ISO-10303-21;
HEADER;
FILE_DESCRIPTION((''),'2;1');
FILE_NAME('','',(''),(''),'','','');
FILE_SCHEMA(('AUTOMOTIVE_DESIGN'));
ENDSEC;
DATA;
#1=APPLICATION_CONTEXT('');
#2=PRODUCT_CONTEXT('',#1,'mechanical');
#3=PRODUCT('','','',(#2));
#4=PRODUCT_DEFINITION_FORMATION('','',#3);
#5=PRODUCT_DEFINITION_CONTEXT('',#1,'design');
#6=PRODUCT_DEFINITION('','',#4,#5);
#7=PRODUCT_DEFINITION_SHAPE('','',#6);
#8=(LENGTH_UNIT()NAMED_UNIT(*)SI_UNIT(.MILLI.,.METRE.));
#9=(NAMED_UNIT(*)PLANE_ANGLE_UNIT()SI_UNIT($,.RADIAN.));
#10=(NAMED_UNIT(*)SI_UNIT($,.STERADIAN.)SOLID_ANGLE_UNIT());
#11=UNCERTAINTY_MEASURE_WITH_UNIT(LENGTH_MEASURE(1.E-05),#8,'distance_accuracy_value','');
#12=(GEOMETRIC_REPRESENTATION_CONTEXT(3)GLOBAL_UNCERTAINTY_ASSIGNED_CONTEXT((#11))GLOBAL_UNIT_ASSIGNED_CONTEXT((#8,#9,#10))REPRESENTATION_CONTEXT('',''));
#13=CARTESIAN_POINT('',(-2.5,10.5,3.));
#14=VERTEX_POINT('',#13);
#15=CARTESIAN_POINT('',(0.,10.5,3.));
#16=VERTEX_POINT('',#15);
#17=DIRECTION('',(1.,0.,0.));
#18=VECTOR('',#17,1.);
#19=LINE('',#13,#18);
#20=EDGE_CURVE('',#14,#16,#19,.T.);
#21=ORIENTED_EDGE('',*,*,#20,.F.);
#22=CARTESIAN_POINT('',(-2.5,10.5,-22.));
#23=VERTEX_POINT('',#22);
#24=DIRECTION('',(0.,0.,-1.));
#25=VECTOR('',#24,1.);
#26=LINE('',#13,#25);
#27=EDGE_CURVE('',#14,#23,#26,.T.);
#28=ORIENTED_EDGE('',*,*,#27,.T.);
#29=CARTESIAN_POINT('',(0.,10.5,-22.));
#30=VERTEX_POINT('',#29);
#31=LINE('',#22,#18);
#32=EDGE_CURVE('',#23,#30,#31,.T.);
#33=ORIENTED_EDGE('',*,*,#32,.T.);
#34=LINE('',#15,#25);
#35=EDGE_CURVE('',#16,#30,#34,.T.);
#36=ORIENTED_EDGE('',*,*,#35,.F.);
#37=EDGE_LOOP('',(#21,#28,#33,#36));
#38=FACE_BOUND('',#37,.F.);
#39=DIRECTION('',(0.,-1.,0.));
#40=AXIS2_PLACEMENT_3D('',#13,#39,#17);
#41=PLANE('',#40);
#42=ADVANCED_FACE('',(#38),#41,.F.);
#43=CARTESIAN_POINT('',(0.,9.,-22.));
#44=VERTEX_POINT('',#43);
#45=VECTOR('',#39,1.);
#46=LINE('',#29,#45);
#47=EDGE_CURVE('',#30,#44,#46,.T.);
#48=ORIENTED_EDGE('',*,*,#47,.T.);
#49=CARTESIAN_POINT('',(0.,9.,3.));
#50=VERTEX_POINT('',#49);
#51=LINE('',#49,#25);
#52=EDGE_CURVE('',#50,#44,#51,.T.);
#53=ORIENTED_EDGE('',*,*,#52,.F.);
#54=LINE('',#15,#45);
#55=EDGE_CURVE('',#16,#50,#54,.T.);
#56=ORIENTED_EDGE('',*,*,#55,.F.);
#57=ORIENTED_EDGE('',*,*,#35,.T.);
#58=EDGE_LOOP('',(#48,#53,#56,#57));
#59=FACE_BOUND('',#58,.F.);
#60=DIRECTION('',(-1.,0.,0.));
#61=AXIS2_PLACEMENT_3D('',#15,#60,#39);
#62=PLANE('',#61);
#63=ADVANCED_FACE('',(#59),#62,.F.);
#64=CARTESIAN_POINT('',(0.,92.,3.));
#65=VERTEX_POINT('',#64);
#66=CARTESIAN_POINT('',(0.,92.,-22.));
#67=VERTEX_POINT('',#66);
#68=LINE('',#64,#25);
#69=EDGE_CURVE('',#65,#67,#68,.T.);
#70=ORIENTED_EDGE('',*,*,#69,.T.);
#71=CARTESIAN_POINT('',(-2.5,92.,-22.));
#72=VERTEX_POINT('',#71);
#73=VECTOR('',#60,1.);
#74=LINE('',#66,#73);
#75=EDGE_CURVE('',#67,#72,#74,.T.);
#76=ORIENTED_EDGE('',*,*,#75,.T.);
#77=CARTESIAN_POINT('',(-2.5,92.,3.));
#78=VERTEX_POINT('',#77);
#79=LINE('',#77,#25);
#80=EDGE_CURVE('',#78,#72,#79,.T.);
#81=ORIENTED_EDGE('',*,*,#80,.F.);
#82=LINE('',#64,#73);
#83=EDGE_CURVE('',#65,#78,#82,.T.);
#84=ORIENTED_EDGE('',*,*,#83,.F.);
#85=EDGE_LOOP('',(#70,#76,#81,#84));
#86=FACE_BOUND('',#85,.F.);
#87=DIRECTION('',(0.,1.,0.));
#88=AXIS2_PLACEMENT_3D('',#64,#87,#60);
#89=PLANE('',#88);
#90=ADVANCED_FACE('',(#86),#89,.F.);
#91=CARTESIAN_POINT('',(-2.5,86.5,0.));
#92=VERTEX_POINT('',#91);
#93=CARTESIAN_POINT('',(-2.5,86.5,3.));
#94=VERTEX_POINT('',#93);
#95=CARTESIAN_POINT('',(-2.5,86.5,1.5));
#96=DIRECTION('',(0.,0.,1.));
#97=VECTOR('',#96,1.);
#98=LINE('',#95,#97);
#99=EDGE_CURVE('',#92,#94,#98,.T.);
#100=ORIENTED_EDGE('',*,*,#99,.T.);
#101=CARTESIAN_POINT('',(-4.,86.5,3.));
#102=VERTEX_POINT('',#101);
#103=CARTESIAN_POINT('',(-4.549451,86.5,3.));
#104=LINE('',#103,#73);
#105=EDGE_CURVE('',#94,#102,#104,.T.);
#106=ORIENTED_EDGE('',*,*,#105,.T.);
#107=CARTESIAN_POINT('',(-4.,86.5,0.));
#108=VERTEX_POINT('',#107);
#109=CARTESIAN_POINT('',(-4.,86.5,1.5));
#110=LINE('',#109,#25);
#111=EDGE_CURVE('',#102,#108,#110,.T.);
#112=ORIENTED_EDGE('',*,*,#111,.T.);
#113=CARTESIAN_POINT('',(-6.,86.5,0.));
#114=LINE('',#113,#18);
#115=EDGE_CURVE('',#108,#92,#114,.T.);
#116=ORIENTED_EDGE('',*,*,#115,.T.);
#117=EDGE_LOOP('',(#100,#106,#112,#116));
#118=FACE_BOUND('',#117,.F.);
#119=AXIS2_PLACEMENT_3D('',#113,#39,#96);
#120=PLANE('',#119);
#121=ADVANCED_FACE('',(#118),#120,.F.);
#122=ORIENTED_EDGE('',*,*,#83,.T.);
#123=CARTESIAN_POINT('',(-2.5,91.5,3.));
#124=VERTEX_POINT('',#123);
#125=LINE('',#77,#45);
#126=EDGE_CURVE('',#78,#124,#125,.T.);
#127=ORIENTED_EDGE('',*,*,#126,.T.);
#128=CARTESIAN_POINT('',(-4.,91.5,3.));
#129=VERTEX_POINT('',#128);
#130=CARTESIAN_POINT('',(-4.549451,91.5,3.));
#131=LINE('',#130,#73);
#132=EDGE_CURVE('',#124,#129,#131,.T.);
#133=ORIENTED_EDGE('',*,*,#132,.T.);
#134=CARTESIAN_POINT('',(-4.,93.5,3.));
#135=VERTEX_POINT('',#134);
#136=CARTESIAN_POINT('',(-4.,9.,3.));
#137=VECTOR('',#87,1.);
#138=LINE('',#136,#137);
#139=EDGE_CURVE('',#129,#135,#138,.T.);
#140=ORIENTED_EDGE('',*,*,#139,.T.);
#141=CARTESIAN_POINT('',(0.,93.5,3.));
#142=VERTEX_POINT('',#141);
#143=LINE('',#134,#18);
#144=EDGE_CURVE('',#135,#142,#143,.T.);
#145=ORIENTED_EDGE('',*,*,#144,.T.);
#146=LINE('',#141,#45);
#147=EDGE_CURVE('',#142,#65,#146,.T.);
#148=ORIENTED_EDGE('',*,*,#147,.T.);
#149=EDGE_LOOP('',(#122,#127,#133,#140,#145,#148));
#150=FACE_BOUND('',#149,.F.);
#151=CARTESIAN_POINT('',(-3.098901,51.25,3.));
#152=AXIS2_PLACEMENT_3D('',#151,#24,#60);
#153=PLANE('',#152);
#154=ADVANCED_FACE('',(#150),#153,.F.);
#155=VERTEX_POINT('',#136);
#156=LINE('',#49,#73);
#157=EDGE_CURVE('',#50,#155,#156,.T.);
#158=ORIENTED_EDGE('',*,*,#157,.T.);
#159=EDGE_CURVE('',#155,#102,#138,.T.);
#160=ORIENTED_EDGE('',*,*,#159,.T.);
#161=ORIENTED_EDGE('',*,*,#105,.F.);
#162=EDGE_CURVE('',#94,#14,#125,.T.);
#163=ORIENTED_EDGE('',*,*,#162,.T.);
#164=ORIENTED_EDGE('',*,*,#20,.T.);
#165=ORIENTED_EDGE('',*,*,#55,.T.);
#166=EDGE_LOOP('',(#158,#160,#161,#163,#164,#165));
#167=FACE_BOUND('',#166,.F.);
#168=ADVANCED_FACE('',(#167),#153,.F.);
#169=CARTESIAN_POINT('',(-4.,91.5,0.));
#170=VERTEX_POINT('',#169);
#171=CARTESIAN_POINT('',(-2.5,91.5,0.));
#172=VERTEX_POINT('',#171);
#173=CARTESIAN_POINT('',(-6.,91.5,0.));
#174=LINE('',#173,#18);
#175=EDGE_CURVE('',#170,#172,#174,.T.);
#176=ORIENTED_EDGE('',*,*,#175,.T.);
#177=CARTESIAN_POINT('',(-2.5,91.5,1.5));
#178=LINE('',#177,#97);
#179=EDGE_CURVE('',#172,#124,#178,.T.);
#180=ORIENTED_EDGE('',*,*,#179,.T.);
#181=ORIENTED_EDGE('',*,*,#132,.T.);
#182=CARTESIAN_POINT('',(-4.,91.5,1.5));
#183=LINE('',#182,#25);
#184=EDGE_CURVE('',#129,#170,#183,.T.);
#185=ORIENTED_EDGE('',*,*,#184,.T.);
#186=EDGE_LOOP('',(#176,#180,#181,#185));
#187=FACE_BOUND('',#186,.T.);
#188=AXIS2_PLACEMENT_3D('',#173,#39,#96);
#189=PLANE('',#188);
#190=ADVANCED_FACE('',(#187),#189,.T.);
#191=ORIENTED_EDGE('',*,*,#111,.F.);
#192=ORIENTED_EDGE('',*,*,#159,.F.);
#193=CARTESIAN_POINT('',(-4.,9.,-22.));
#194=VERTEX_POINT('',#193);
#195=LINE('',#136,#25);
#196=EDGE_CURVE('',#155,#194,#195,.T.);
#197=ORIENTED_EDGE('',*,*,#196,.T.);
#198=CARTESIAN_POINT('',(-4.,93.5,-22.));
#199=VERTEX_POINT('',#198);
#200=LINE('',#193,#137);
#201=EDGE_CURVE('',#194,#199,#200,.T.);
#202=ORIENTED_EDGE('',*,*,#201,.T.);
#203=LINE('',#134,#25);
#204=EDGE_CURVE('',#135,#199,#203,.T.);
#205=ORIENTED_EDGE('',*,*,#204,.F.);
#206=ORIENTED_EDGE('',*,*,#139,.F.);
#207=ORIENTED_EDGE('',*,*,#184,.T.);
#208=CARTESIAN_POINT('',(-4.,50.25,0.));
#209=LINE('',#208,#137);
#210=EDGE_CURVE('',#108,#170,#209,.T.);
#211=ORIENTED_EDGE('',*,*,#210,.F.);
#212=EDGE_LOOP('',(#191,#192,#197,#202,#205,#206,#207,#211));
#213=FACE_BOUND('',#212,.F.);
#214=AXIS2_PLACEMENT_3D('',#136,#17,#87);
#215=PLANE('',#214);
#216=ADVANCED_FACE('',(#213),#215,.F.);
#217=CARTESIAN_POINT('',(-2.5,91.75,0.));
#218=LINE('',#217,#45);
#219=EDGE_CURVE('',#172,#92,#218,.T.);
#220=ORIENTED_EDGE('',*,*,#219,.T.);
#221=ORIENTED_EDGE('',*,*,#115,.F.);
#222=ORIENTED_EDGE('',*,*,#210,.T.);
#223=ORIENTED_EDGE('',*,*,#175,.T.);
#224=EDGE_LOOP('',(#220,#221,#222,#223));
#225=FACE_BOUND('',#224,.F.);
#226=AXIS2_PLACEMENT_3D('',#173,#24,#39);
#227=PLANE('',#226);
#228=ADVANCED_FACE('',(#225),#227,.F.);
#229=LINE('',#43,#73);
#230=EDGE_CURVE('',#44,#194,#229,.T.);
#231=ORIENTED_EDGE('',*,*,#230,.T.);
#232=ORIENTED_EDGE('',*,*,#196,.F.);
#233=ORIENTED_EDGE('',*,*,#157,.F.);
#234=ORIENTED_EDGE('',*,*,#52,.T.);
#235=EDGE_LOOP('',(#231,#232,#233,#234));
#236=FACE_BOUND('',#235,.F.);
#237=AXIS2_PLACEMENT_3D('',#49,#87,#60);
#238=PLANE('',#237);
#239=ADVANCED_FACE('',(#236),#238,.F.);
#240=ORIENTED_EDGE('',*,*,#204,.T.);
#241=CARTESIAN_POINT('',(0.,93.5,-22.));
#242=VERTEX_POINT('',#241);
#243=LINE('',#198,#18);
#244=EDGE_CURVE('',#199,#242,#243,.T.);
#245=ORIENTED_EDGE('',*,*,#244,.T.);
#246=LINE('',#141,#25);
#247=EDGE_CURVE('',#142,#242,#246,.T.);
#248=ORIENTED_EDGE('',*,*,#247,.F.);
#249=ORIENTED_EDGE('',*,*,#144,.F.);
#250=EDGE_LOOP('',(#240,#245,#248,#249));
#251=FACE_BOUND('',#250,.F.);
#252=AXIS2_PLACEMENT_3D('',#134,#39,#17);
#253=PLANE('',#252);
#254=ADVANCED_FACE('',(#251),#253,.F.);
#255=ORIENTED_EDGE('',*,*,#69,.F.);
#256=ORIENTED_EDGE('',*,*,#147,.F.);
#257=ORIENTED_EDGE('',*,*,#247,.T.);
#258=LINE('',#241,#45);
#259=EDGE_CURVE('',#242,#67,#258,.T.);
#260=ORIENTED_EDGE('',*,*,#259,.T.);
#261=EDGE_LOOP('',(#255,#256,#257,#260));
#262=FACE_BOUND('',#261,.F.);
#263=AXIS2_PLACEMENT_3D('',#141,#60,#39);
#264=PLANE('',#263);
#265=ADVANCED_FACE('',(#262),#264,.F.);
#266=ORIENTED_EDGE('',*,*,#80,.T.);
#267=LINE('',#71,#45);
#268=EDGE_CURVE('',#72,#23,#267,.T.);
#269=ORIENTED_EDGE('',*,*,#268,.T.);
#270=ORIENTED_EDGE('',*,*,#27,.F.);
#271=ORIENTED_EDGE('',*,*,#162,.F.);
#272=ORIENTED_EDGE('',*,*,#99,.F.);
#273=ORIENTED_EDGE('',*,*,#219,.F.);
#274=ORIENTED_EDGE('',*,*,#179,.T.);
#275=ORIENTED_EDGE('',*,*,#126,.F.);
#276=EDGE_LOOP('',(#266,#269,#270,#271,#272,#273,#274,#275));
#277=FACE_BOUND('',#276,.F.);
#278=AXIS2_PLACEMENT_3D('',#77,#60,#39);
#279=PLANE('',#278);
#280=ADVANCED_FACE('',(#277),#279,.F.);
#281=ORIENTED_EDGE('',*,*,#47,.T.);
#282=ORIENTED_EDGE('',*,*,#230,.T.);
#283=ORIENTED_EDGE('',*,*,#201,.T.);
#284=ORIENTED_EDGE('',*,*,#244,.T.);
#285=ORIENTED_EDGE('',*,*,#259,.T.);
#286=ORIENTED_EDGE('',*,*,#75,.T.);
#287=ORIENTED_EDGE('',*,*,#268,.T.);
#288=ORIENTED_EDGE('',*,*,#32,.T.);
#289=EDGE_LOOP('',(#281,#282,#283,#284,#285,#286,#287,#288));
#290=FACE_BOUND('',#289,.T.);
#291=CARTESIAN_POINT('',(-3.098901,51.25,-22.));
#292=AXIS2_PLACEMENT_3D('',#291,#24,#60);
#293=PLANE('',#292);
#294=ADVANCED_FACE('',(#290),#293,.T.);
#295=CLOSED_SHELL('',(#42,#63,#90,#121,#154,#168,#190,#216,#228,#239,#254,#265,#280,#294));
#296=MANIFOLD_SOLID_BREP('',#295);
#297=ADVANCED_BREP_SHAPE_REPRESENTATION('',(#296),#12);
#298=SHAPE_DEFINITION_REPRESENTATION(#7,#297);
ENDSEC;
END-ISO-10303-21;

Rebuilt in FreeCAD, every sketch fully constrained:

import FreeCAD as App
import Part
import Sketcher

doc = App.newDocument("Part")
body = doc.addObject("PartDesign::Body", "Body")

# Sketch on YZ plane
sketch1 = doc.addObject("Sketcher::SketchObject", "Sketch")
body.addObject(sketch1)
sketch1.AttachmentSupport = (doc.YZ_Plane, [""])
sketch1.MapMode = "FlatFace"
sketch1.AttachmentOffset = App.Placement(App.Vector(0, 0, -6), App.Rotation())
sketch1.addGeometry(Part.LineSegment(App.Vector(91.5, 4, 0), App.Vector(91.5, 0, 0)), False)
sketch1.addGeometry(Part.LineSegment(App.Vector(91.5, 0, 0), App.Vector(86.5, 0, 0)), False)
sketch1.addGeometry(Part.LineSegment(App.Vector(86.5, 0, 0), App.Vector(86.5, 4, 0)), False)
sketch1.addGeometry(Part.LineSegment(App.Vector(86.5, 4, 0), App.Vector(91.5, 4, 0)), False)
sketch1.addConstraint(Sketcher.Constraint("Coincident", 0, 2, 1, 1))
sketch1.addConstraint(Sketcher.Constraint("Coincident", 1, 2, 2, 1))
sketch1.addConstraint(Sketcher.Constraint("Coincident", 2, 2, 3, 1))
sketch1.addConstraint(Sketcher.Constraint("Coincident", 3, 2, 0, 1))
sketch1.addConstraint(Sketcher.Constraint("Vertical", 0))
sketch1.addConstraint(Sketcher.Constraint("Horizontal", 1))
sketch1.addConstraint(Sketcher.Constraint("Vertical", 2))
sketch1.addConstraint(Sketcher.Constraint("Horizontal", 3))
sketch1.addConstraint(Sketcher.Constraint("PointOnObject", 0, 2, -1))
sketch1.addConstraint(Sketcher.Constraint("DistanceX", 1, 2, 1, 1, 5.0))
sketch1.addConstraint(Sketcher.Constraint("DistanceY", 0, 2, 0, 1, 4.0))
sketch1.addConstraint(Sketcher.Constraint("DistanceX", -1, 1, 0, 2, 91.5))
pad1 = doc.addObject("PartDesign::Pad", "Pad")
body.addObject(pad1)
pad1.Profile = sketch1
pad1.Length = 5
body2 = doc.addObject("PartDesign::Body", "Body001")

# Sketch on XY plane
sketch2 = doc.addObject("Sketcher::SketchObject", "Sketch001")
body2.addObject(sketch2)
sketch2.AttachmentSupport = (doc.getObject("XY_Plane001"), [""])
sketch2.MapMode = "FlatFace"
sketch2.AttachmentOffset = App.Placement(App.Vector(0, 0, 3), App.Rotation())
sketch2.addGeometry(Part.LineSegment(App.Vector(0, 93.5, 0), App.Vector(-4, 93.5, 0)), False)
sketch2.addGeometry(Part.LineSegment(App.Vector(-4, 93.5, 0), App.Vector(-4, 9, 0)), False)
sketch2.addGeometry(Part.LineSegment(App.Vector(-4, 9, 0), App.Vector(0, 9, 0)), False)
sketch2.addGeometry(Part.LineSegment(App.Vector(0, 9, 0), App.Vector(0, 10.5, 0)), False)
sketch2.addGeometry(Part.LineSegment(App.Vector(0, 10.5, 0), App.Vector(-2.5, 10.5, 0)), False)
sketch2.addGeometry(Part.LineSegment(App.Vector(-2.5, 10.5, 0), App.Vector(-2.5, 92, 0)), False)
sketch2.addGeometry(Part.LineSegment(App.Vector(-2.5, 92, 0), App.Vector(0, 92, 0)), False)
sketch2.addGeometry(Part.LineSegment(App.Vector(0, 92, 0), App.Vector(0, 93.5, 0)), False)
sketch2.addConstraint(Sketcher.Constraint("Coincident", 0, 2, 1, 1))
sketch2.addConstraint(Sketcher.Constraint("Coincident", 1, 2, 2, 1))
sketch2.addConstraint(Sketcher.Constraint("Coincident", 2, 2, 3, 1))
sketch2.addConstraint(Sketcher.Constraint("Coincident", 3, 2, 4, 1))
sketch2.addConstraint(Sketcher.Constraint("Coincident", 4, 2, 5, 1))
sketch2.addConstraint(Sketcher.Constraint("Coincident", 5, 2, 6, 1))
sketch2.addConstraint(Sketcher.Constraint("Coincident", 6, 2, 7, 1))
sketch2.addConstraint(Sketcher.Constraint("Coincident", 7, 2, 0, 1))
sketch2.addConstraint(Sketcher.Constraint("Horizontal", 0))
sketch2.addConstraint(Sketcher.Constraint("Vertical", 1))
sketch2.addConstraint(Sketcher.Constraint("Horizontal", 2))
sketch2.addConstraint(Sketcher.Constraint("Vertical", 3))
sketch2.addConstraint(Sketcher.Constraint("Horizontal", 4))
sketch2.addConstraint(Sketcher.Constraint("Vertical", 5))
sketch2.addConstraint(Sketcher.Constraint("Horizontal", 6))
sketch2.addConstraint(Sketcher.Constraint("Vertical", 7))
sketch2.addConstraint(Sketcher.Constraint("PointOnObject", 2, 2, -2))
sketch2.addConstraint(Sketcher.Constraint("PointOnObject", 6, 2, -2))
sketch2.addConstraint(Sketcher.Constraint("Equal", 3, 7))
sketch2.addConstraint(Sketcher.Constraint("DistanceX", 0, 2, 0, 1, 4.0))
sketch2.addConstraint(Sketcher.Constraint("DistanceX", 4, 2, 4, 1, 2.5))
sketch2.addConstraint(Sketcher.Constraint("DistanceY", 1, 2, 1, 1, 84.5))
sketch2.addConstraint(Sketcher.Constraint("DistanceY", 3, 1, 3, 2, 1.5))
sketch2.addConstraint(Sketcher.Constraint("DistanceY", -1, 1, 1, 2, 9.0))
pad2 = doc.addObject("PartDesign::Pad", "Pad001")
body2.addObject(pad2)
pad2.Profile = sketch2
pad2.Length = 25
pad2.Reversed = True
doc.recompute()

boolean = doc.addObject("PartDesign::Boolean", "Boolean")
body2.addObject(boolean)
boolean.Type = "Cut"
boolean.addObjects([body])

doc.recompute()
